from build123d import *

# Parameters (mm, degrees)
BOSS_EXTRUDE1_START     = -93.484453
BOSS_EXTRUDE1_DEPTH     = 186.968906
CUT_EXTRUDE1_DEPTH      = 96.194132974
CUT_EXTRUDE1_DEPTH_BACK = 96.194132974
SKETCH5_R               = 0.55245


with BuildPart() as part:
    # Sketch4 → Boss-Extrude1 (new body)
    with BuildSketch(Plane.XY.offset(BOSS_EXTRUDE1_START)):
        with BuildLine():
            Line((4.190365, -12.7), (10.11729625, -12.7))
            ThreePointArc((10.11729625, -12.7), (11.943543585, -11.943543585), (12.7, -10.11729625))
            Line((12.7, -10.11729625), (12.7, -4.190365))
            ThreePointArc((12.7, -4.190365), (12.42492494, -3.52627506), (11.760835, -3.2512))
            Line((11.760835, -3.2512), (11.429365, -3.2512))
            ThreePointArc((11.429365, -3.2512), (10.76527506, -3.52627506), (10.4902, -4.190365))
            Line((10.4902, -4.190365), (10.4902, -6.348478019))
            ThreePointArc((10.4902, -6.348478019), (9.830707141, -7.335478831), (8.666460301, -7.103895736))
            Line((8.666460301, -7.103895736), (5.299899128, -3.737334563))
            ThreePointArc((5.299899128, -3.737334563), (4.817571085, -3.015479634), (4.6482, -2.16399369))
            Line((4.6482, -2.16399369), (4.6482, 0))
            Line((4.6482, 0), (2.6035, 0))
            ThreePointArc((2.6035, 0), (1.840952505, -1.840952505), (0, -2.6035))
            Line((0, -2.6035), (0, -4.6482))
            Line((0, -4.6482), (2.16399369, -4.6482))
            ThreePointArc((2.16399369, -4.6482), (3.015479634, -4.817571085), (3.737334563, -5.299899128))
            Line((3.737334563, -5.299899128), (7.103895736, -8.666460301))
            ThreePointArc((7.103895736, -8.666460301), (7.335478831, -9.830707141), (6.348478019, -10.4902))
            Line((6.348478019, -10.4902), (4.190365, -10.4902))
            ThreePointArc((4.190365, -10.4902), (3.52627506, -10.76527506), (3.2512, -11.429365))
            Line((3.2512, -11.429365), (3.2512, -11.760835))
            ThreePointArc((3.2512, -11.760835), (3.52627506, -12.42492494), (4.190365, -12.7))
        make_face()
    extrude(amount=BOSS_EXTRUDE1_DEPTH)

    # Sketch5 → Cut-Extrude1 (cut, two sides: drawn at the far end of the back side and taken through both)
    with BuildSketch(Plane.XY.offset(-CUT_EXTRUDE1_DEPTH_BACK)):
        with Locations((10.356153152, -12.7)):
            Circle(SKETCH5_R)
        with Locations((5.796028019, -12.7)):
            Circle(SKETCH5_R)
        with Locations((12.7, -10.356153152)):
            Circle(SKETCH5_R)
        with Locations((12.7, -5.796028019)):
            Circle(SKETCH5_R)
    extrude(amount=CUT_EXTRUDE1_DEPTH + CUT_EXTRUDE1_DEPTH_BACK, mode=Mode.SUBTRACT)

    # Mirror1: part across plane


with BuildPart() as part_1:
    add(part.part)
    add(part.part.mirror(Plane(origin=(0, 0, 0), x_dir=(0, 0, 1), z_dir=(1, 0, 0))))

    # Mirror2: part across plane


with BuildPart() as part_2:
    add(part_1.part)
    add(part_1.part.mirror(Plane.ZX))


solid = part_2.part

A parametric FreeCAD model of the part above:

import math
import FreeCAD as App
import Part
import Sketcher
Q = App.Units.Quantity

doc = App.newDocument("Part")
body = doc.addObject("PartDesign::Body", "Body")

# Sketch on XY plane
sketch1 = body.newObject("Sketcher::SketchObject", "Sketch")
sketch1.AttachmentSupport = (doc.getObject("XY_Plane"), [""])
sketch1.MapMode = "FlatFace"
sketch1.AttachmentOffset = App.Placement(App.Vector(0, 0, -93.484453), App.Rotation())
sketch1.addGeometry([
    Part.LineSegment(App.Vector(4.190365, -12.7, 0), App.Vector(10.117296, -12.7, 0)),  # 0
    Part.ArcOfCircle(Part.Circle(App.Vector(10.117296, -10.117296, 0), App.Vector(0, 0, 1), 2.582704), math.radians(-90), math.radians(0)),  # 1
    Part.LineSegment(App.Vector(12.7, -10.117296, 0), App.Vector(12.7, -4.190365, 0)),  # 2
    Part.ArcOfCircle(Part.Circle(App.Vector(11.760835, -4.190365, 0), App.Vector(0, 0, 1), 0.939165), math.radians(0), math.radians(90)),  # 3
    Part.LineSegment(App.Vector(11.760835, -3.2512, 0), App.Vector(11.429365, -3.2512, 0)),  # 4
    Part.ArcOfCircle(Part.Circle(App.Vector(11.429365, -4.190365, 0), App.Vector(0, 0, 1), 0.939165), math.radians(90), math.radians(180)),  # 5
    Part.LineSegment(App.Vector(10.4902, -4.190365, 0), App.Vector(10.4902, -6.348478, 0)),  # 6
    Part.ArcOfCircle(Part.Circle(App.Vector(9.421878, -6.348478, 0), App.Vector(0, 0, 1), 1.068322), math.radians(-135), math.radians(0)),  # 7
    Part.LineSegment(App.Vector(8.66646, -7.103896, 0), App.Vector(5.299899, -3.737335, 0)),  # 8
    Part.ArcOfCircle(Part.Circle(App.Vector(6.87324, -2.163994, 0), App.Vector(0, 0, 1), 2.22504), math.radians(-180), math.radians(-135)),  # 9
    Part.LineSegment(App.Vector(4.6482, -2.163994, 0), App.Vector(4.6482, 0, 0)),  # 10
    Part.LineSegment(App.Vector(4.6482, 0, 0), App.Vector(2.6035, 0, 0)),  # 11
    Part.ArcOfCircle(Part.Circle(App.Vector(0, 0, 0), App.Vector(0, 0, 1), 2.6035), math.radians(-90), math.radians(0)),  # 12
    Part.LineSegment(App.Vector(0, -2.6035, 0), App.Vector(0, -4.6482, 0)),  # 13
    Part.LineSegment(App.Vector(0, -4.6482, 0), App.Vector(2.163994, -4.6482, 0)),  # 14
    Part.ArcOfCircle(Part.Circle(App.Vector(2.163994, -6.87324, 0), App.Vector(0, 0, 1), 2.22504), math.radians(45), math.radians(90)),  # 15
    Part.LineSegment(App.Vector(3.737335, -5.299899, 0), App.Vector(7.103896, -8.66646, 0)),  # 16
    Part.ArcOfCircle(Part.Circle(App.Vector(6.348478, -9.421878, 0), App.Vector(0, 0, 1), 1.068322), math.radians(-90), math.radians(45)),  # 17
    Part.LineSegment(App.Vector(6.348478, -10.4902, 0), App.Vector(4.190365, -10.4902, 0)),  # 18
    Part.ArcOfCircle(Part.Circle(App.Vector(4.190365, -11.429365, 0), App.Vector(0, 0, 1), 0.939165), math.radians(90), math.radians(180)),  # 19
    Part.LineSegment(App.Vector(3.2512, -11.429365, 0), App.Vector(3.2512, -11.760835, 0)),  # 20
    Part.ArcOfCircle(Part.Circle(App.Vector(4.190365, -11.760835, 0), App.Vector(0, 0, 1), 0.939165), math.radians(-180), math.radians(-90)),  # 21
], False)
sketch1.addConstraint([
    Sketcher.Constraint("Tangent", 0, 2, 1, 1),
    Sketcher.Constraint("Tangent", 1, 2, 2, 1),
    Sketcher.Constraint("Tangent", 2, 2, 3, 1),
    Sketcher.Constraint("Tangent", 3, 2, 4, 1),
    Sketcher.Constraint("Tangent", 4, 2, 5, 1),
    Sketcher.Constraint("Tangent", 5, 2, 6, 1),
    Sketcher.Constraint("Tangent", 6, 2, 7, 2),
    Sketcher.Constraint("Tangent", 7, 1, 8, 1),
    Sketcher.Constraint("Tangent", 8, 2, 9, 2),
    Sketcher.Constraint("Tangent", 9, 1, 10, 1),
    Sketcher.Constraint("Coincident", 10, 2, 11, 1),
    Sketcher.Constraint("Coincident", 11, 2, 12, 2),
    Sketcher.Constraint("Coincident", 12, 1, 13, 1),
    Sketcher.Constraint("Coincident", 13, 2, 14, 1),
    Sketcher.Constraint("Tangent", 14, 2, 15, 2),
    Sketcher.Constraint("Tangent", 15, 1, 16, 1),
    Sketcher.Constraint("Tangent", 16, 2, 17, 2),
    Sketcher.Constraint("Tangent", 17, 1, 18, 1),
    Sketcher.Constraint("Tangent", 18, 2, 19, 1),
    Sketcher.Constraint("Tangent", 19, 2, 20, 1),
    Sketcher.Constraint("Tangent", 20, 2, 21, 1),
    Sketcher.Constraint("Tangent", 21, 2, 0, 1),
    Sketcher.Constraint("Horizontal", 0),
    Sketcher.Constraint("Vertical", 2),
    Sketcher.Constraint("Horizontal", 4),
    Sketcher.Constraint("Vertical", 6),
    Sketcher.Constraint("Vertical", 10),
    Sketcher.Constraint("Horizontal", 11),
    Sketcher.Constraint("Vertical", 13),
    Sketcher.Constraint("Horizontal", 14),
    Sketcher.Constraint("Horizontal", 18),
    Sketcher.Constraint("Vertical", 20),
    Sketcher.Constraint("Coincident", 12, 3, -1, 1),
    Sketcher.Constraint("Equal", 3, 5),
    Sketcher.Constraint("Equal", 9, 15),
    Sketcher.Constraint("Equal", 7, 17),
    Sketcher.Constraint("Equal", 5, 19),
    Sketcher.Constraint("Equal", 19, 21),
    Sketcher.Constraint("PointOnObject", 10, 2, -1),
    Sketcher.Constraint("PointOnObject", 12, 1, -2),
    Sketcher.Constraint("Parallel", 8, 16),
    Sketcher.Constraint("Equal", 0, 2),
    Sketcher.Constraint("Equal", 18, 6),
    Sketcher.Constraint("Equal", 14, 10),
    Sketcher.Constraint("Equal", 11, 13),
    Sketcher.Constraint("Equal", 4, 20),
    Sketcher.Constraint("Equal", 8, 16),
    Sketcher.Constraint("DistanceY", 0, 2, -1, 1, Q("0.5 in")),
    Sketcher.Constraint("Radius", 9, Q("0.0876 in")),
    Sketcher.Constraint("Radius", 12, Q("0.1025 in")),
    Sketcher.Constraint("DistanceX", 9, 1, 5, 2, Q("0.23 in")),
    Sketcher.Constraint("DistanceX", 11, 2, 11, 1, Q("0.0805 in")),
    Sketcher.Constraint("DistanceY", 3, 2, -1, 1, Q("0.128 in")),
    Sketcher.Constraint("Radius", 7, Q("1.068322 mm")),
    Sketcher.Constraint("DistanceX", 17, 3, 7, 3, Q("0.121 in")),
    Sketcher.Constraint("Radius", 1, Q("2.582704 mm")),
    Sketcher.Constraint("Radius", 3, Q("0.939165 mm")),
])
pad1 = body.newObject("PartDesign::Pad", "Pad")
pad1.Profile = sketch1
pad1.Length = 186.968906

# Sketch on XY plane
sketch2 = body.newObject("Sketcher::SketchObject", "Sketch001")
sketch2.AttachmentSupport = (doc.getObject("XY_Plane"), [""])
sketch2.MapMode = "FlatFace"
sketch2.addGeometry([
    Part.Circle(App.Vector(10.356153, -12.7, 0), App.Vector(0, 0, 1), 0.55245),
    Part.Circle(App.Vector(5.796028, -12.7, 0), App.Vector(0, 0, 1), 0.55245),
    Part.Circle(App.Vector(12.7, -10.356153, 0), App.Vector(0, 0, 1), 0.55245),
    Part.Circle(App.Vector(12.7, -5.796028, 0), App.Vector(0, 0, 1), 0.55245),
], False)
sketch2.addConstraint([
    Sketcher.Constraint("Equal", 0, 1),
    Sketcher.Constraint("Equal", 1, 2),
    Sketcher.Constraint("Equal", 2, 3),
    Sketcher.Constraint("Horizontal", 0, 3, 1, 3),
    Sketcher.Constraint("Vertical", 2, 3, 3, 3),
    Sketcher.Constraint("Diameter", 0, Q("0.0435 in")),
    Sketcher.Constraint("DistanceY", 0, 3, -1, 1, Q("0.5 in")),
    Sketcher.Constraint("DistanceX", -1, 1, 2, 3, Q("0.5 in")),
    Sketcher.Constraint("DistanceX", -1, 1, 1, 3, Q("5.796028 mm")),
    Sketcher.Constraint("DistanceY", 3, 3, -1, 1, Q("5.796028 mm")),
    Sketcher.Constraint("DistanceX", -1, 1, 0, 3, Q("10.356153 mm")),
    Sketcher.Constraint("DistanceY", 2, 3, -1, 1, Q("10.356153 mm")),
])
pocket1 = body.newObject("PartDesign::Pocket", "Pocket")
pocket1.Profile = sketch2
pocket1.Type = "ThroughAll"
pocket1.Midplane = True
body2 = doc.addObject("PartDesign::Body", "Body001")
doc.recompute()

body2.BaseFeature = body
doc.recompute()

mirroring = doc.addObject("Part::Mirroring", "Mirroring")
mirroring.Source = body
mirroring.Base = App.Vector(0, 0, 0)
mirroring.Normal = App.Vector(1, 0, 0)
body3 = doc.addObject("PartDesign::Body", "Body002")
body3.BaseFeature = mirroring
boolean = body2.newObject("PartDesign::Boolean", "Boolean")
boolean.Type = "Fuse"
boolean.addObjects([body3])
doc.recompute()
body4 = doc.addObject("PartDesign::Body", "Body003")
doc.recompute()

body4.BaseFeature = body2
doc.recompute()

mirroring2 = doc.addObject("Part::Mirroring", "Mirroring001")
mirroring2.Source = body2
mirroring2.Base = App.Vector(0, 0, 0)
mirroring2.Normal = App.Vector(0, 1, 0)
body5 = doc.addObject("PartDesign::Body", "Body004")
body5.BaseFeature = mirroring2
boolean2 = body4.newObject("PartDesign::Boolean", "Boolean001")
boolean2.Type = "Fuse"
boolean2.addObjects([body5])
doc.recompute()
mirroring.Visibility = False
mirroring2.Visibility = False

doc.recompute()
